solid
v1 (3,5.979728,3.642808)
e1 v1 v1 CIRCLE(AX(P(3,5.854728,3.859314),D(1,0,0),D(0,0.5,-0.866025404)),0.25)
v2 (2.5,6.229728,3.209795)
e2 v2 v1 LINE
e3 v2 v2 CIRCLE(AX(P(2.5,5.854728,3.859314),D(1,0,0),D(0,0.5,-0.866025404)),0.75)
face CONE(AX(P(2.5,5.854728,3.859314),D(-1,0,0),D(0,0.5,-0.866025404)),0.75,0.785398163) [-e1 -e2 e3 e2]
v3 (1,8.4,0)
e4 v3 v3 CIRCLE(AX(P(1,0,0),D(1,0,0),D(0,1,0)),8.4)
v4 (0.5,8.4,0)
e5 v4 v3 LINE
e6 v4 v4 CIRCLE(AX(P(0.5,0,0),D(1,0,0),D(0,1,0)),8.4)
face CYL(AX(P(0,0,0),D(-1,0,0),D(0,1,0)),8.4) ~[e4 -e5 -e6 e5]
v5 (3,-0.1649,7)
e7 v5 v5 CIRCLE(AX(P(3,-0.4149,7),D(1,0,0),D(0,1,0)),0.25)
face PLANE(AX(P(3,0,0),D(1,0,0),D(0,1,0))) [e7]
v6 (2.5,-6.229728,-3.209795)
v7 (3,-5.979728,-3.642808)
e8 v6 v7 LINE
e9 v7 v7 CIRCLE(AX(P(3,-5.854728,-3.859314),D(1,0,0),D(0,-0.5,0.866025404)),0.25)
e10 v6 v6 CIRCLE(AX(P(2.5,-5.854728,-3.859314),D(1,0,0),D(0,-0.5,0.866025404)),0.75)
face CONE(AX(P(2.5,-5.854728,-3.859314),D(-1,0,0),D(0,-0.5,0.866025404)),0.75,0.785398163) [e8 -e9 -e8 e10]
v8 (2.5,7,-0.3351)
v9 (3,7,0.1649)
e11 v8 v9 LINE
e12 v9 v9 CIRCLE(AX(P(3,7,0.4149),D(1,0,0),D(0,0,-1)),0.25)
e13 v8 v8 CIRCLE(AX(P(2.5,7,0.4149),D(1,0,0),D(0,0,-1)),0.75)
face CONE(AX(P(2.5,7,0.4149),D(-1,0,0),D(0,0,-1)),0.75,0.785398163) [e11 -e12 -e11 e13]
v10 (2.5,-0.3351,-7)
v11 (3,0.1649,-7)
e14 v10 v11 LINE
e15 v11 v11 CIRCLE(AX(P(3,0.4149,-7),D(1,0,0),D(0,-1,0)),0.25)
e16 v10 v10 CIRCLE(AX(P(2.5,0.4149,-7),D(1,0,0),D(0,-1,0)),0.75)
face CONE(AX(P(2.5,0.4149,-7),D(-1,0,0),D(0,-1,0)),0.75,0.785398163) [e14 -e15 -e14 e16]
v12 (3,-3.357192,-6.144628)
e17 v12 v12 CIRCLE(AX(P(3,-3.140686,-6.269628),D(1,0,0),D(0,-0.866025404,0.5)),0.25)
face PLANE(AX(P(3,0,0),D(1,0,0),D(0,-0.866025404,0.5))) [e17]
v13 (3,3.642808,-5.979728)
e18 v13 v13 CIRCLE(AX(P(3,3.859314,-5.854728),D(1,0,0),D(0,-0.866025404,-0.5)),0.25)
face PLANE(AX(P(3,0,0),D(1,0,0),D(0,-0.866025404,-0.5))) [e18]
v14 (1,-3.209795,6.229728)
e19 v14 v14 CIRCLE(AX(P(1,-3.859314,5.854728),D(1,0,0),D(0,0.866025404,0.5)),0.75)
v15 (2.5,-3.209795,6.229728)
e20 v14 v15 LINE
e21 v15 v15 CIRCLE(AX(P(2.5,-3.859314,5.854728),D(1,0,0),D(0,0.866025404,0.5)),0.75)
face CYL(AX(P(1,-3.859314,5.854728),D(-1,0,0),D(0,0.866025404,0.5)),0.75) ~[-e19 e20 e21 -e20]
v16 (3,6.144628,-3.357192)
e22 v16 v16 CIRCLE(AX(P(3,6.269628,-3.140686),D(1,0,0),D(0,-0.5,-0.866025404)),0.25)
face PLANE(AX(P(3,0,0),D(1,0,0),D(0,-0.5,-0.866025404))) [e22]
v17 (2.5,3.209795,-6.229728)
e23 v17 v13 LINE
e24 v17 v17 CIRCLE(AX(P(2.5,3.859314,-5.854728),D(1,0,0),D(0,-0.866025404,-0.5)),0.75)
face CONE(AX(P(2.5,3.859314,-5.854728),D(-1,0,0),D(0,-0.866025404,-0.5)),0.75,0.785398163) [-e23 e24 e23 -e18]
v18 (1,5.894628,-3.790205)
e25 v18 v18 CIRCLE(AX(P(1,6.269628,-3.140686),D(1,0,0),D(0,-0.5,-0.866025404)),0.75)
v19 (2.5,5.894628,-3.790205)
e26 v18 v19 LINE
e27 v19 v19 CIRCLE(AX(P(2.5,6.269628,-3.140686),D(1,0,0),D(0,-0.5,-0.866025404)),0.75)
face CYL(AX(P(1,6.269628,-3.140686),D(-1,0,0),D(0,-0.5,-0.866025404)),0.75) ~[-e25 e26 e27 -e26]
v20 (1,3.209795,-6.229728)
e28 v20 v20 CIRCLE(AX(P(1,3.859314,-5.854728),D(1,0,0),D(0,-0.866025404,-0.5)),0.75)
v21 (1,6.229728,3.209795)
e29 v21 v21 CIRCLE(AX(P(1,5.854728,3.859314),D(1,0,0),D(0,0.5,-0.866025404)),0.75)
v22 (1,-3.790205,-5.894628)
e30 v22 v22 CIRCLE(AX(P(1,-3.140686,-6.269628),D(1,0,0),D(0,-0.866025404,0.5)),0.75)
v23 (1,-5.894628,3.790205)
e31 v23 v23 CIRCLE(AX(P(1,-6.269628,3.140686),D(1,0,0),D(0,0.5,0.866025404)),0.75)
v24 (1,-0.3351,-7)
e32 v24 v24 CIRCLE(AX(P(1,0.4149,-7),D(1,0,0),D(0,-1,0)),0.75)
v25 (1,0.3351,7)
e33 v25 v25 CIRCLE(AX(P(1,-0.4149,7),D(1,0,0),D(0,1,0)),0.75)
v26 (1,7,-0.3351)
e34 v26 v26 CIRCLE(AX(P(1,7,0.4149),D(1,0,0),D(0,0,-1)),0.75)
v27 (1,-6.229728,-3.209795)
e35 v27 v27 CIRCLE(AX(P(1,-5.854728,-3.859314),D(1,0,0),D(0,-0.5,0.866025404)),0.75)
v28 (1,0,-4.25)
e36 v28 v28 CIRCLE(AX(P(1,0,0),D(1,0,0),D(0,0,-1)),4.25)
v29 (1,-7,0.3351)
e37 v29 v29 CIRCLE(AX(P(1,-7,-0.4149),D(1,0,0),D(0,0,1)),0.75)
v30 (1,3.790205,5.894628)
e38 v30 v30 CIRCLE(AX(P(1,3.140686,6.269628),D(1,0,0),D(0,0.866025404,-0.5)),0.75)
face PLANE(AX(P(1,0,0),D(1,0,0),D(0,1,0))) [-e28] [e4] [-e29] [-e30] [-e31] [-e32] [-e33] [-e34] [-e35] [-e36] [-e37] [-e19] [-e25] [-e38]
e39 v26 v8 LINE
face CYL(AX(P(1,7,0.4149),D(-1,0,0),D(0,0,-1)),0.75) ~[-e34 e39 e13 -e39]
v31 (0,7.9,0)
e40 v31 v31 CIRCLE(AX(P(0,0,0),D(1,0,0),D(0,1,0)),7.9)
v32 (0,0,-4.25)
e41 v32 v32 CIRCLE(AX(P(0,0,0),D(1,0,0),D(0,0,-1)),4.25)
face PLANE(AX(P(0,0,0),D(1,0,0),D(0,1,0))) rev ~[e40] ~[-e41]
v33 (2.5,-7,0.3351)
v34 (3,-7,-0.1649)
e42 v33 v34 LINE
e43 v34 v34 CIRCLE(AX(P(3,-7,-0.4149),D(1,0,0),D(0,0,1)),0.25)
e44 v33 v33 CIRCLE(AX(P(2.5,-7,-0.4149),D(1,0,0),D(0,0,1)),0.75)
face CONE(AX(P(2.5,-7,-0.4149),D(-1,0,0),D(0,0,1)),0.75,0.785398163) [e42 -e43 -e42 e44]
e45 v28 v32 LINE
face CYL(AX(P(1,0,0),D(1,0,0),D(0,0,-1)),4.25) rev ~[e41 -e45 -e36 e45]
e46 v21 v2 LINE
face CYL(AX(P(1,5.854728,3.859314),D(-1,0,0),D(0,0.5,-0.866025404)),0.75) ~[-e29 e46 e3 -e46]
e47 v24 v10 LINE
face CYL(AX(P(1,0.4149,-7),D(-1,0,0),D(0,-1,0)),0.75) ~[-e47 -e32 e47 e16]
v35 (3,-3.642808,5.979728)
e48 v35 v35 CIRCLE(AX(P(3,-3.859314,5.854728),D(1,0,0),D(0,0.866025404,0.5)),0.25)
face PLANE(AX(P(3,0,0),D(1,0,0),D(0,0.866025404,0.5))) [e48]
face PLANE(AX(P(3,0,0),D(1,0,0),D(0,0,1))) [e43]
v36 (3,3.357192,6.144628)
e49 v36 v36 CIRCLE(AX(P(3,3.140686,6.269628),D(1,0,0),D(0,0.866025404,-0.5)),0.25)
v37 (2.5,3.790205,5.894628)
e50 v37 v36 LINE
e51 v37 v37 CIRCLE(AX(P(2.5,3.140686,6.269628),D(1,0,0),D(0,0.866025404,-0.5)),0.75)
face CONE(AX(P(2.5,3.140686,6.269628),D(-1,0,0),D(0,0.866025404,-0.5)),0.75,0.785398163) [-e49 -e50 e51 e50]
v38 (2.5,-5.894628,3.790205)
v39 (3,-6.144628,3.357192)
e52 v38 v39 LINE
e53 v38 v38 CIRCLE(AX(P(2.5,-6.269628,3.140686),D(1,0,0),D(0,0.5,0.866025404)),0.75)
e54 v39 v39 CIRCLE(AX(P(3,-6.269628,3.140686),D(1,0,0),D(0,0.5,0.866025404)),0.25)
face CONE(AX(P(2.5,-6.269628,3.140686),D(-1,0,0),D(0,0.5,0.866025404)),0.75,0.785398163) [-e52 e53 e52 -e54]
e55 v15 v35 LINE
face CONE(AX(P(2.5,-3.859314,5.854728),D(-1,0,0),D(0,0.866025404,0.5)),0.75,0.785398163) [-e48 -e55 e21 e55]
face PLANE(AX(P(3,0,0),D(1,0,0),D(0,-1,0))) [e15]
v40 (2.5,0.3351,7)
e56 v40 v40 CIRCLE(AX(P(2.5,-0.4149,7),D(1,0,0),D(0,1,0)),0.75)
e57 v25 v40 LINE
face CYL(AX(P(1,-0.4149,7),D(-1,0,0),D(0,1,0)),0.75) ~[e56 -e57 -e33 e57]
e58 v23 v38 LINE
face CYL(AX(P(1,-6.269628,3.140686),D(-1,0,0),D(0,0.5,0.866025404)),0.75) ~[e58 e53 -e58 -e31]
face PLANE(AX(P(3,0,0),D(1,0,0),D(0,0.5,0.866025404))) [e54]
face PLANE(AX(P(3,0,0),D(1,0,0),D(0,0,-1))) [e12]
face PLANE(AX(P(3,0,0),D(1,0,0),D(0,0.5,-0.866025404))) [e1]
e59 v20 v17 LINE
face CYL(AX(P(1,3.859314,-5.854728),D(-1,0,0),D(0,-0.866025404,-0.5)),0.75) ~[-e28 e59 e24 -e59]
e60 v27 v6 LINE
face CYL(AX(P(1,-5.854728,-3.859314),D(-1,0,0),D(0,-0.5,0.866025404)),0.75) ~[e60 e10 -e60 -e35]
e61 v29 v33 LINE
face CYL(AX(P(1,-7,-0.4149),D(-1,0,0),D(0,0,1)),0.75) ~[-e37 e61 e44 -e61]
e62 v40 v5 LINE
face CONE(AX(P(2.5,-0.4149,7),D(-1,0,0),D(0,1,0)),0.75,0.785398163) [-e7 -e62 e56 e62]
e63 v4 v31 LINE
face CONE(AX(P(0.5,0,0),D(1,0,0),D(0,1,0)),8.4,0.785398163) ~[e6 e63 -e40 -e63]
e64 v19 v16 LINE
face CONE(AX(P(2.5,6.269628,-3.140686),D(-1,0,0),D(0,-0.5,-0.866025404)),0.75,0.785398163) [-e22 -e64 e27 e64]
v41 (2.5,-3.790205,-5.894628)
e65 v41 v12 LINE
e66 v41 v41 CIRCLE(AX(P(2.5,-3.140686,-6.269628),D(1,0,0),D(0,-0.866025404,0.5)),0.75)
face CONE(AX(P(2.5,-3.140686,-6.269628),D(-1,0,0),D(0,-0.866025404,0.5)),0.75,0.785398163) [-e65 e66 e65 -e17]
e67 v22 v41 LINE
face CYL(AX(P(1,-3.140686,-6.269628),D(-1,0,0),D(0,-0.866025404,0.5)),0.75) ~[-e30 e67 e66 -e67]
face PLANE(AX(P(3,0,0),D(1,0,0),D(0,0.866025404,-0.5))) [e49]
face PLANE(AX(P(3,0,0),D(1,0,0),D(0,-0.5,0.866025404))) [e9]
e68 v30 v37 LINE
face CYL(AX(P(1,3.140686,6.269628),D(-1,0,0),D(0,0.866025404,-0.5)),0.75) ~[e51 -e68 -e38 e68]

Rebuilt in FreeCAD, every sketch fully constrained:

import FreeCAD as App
import Part
import Sketcher

V = App.Vector


def edges_at(feature, points):
    """Names of the edges that pass closest to the given points."""
    edges = feature.Shape.Edges
    near = lambda p: min(range(len(edges)), key=lambda i: edges[i].distToShape(Part.Vertex(*p))[0])
    return sorted({f"Edge{near(p) + 1}" for p in points})

doc = App.newDocument("Part")
body = doc.addObject("PartDesign::Body", "Body")

# Sketch on YZ plane
sketch1 = body.newObject("Sketcher::SketchObject", "Sketch")
sketch1.AttachmentSupport = (doc.getObject("YZ_Plane"), [""])
sketch1.MapMode = "FlatFace"
sketch1.addGeometry(Part.Circle(V(0, 0, 0), V(0, 0, 1), 8), False)
sketch1.addConstraint([
    Sketcher.Constraint("Coincident", 0, 3, -1, 1),
    Sketcher.Constraint("Diameter", 0, 16.8),
])
pad1 = body.newObject("PartDesign::Pad", "Pad")
pad1.Profile = sketch1
pad1.Length = 1

# Sketch on YZ plane
sketch2 = body.newObject("Sketcher::SketchObject", "Sketch001")
sketch2.AttachmentSupport = (doc.getObject("YZ_Plane"), [""])
sketch2.MapMode = "FlatFace"
sketch2.AttachmentOffset = App.Placement(V(0, 0, 1), App.Rotation())
sketch2.addGeometry(Part.Circle(V(7, 0.4, 0), V(0, 0, 1), 0.8), False)
sketch2.addConstraint([
    Sketcher.Constraint("Diameter", 0, 1.5),
    Sketcher.Constraint("DistanceX", -1, 1, 0, 3, 7.0),
    Sketcher.Constraint("DistanceY", -1, 1, 0, 3, 0.415),
])
pad2 = body.newObject("PartDesign::Pad", "Pad001")
pad2.Profile = sketch2
pad2.Length = 2
doc.recompute()

chamfer = body.newObject("PartDesign::Chamfer", "Chamfer")
chamfer.Base = (pad2, edges_at(pad2, [(3, 7, 1.165)]))
chamfer.Size = 0.5
doc.recompute()

polarpattern = body.newObject("PartDesign::PolarPattern", "PolarPattern")
polarpattern.Originals = [pad2, chamfer]
polarpattern.Axis = (doc.getObject("X_Axis"), [""])
polarpattern.Angle = 360
polarpattern.Occurrences = 12
body.Tip = polarpattern

# Sketch on YZ plane
sketch3 = body.newObject("Sketcher::SketchObject", "Sketch002")
sketch3.AttachmentSupport = (doc.getObject("YZ_Plane"), [""])
sketch3.MapMode = "FlatFace"
sketch3.AttachmentOffset = App.Placement(V(0, 0, 1), App.Rotation())
sketch3.addGeometry(Part.Circle(V(0, 0, 0), V(0, 0, 1), 4.2), False)
sketch3.addConstraint([
    Sketcher.Constraint("Coincident", 0, 3, -1, 1),
    Sketcher.Constraint("Diameter", 0, 8.5),
])
pocket1 = body.newObject("PartDesign::Pocket", "Pocket")
pocket1.Profile = sketch3
pocket1.Type = "UpToFirst"
doc.recompute()

chamfer2 = body.newObject("PartDesign::Chamfer", "Chamfer001")
chamfer2.Base = (pocket1, edges_at(pocket1, [(0, -8.4, 0)]))
chamfer2.Size = 0.5

doc.recompute()
